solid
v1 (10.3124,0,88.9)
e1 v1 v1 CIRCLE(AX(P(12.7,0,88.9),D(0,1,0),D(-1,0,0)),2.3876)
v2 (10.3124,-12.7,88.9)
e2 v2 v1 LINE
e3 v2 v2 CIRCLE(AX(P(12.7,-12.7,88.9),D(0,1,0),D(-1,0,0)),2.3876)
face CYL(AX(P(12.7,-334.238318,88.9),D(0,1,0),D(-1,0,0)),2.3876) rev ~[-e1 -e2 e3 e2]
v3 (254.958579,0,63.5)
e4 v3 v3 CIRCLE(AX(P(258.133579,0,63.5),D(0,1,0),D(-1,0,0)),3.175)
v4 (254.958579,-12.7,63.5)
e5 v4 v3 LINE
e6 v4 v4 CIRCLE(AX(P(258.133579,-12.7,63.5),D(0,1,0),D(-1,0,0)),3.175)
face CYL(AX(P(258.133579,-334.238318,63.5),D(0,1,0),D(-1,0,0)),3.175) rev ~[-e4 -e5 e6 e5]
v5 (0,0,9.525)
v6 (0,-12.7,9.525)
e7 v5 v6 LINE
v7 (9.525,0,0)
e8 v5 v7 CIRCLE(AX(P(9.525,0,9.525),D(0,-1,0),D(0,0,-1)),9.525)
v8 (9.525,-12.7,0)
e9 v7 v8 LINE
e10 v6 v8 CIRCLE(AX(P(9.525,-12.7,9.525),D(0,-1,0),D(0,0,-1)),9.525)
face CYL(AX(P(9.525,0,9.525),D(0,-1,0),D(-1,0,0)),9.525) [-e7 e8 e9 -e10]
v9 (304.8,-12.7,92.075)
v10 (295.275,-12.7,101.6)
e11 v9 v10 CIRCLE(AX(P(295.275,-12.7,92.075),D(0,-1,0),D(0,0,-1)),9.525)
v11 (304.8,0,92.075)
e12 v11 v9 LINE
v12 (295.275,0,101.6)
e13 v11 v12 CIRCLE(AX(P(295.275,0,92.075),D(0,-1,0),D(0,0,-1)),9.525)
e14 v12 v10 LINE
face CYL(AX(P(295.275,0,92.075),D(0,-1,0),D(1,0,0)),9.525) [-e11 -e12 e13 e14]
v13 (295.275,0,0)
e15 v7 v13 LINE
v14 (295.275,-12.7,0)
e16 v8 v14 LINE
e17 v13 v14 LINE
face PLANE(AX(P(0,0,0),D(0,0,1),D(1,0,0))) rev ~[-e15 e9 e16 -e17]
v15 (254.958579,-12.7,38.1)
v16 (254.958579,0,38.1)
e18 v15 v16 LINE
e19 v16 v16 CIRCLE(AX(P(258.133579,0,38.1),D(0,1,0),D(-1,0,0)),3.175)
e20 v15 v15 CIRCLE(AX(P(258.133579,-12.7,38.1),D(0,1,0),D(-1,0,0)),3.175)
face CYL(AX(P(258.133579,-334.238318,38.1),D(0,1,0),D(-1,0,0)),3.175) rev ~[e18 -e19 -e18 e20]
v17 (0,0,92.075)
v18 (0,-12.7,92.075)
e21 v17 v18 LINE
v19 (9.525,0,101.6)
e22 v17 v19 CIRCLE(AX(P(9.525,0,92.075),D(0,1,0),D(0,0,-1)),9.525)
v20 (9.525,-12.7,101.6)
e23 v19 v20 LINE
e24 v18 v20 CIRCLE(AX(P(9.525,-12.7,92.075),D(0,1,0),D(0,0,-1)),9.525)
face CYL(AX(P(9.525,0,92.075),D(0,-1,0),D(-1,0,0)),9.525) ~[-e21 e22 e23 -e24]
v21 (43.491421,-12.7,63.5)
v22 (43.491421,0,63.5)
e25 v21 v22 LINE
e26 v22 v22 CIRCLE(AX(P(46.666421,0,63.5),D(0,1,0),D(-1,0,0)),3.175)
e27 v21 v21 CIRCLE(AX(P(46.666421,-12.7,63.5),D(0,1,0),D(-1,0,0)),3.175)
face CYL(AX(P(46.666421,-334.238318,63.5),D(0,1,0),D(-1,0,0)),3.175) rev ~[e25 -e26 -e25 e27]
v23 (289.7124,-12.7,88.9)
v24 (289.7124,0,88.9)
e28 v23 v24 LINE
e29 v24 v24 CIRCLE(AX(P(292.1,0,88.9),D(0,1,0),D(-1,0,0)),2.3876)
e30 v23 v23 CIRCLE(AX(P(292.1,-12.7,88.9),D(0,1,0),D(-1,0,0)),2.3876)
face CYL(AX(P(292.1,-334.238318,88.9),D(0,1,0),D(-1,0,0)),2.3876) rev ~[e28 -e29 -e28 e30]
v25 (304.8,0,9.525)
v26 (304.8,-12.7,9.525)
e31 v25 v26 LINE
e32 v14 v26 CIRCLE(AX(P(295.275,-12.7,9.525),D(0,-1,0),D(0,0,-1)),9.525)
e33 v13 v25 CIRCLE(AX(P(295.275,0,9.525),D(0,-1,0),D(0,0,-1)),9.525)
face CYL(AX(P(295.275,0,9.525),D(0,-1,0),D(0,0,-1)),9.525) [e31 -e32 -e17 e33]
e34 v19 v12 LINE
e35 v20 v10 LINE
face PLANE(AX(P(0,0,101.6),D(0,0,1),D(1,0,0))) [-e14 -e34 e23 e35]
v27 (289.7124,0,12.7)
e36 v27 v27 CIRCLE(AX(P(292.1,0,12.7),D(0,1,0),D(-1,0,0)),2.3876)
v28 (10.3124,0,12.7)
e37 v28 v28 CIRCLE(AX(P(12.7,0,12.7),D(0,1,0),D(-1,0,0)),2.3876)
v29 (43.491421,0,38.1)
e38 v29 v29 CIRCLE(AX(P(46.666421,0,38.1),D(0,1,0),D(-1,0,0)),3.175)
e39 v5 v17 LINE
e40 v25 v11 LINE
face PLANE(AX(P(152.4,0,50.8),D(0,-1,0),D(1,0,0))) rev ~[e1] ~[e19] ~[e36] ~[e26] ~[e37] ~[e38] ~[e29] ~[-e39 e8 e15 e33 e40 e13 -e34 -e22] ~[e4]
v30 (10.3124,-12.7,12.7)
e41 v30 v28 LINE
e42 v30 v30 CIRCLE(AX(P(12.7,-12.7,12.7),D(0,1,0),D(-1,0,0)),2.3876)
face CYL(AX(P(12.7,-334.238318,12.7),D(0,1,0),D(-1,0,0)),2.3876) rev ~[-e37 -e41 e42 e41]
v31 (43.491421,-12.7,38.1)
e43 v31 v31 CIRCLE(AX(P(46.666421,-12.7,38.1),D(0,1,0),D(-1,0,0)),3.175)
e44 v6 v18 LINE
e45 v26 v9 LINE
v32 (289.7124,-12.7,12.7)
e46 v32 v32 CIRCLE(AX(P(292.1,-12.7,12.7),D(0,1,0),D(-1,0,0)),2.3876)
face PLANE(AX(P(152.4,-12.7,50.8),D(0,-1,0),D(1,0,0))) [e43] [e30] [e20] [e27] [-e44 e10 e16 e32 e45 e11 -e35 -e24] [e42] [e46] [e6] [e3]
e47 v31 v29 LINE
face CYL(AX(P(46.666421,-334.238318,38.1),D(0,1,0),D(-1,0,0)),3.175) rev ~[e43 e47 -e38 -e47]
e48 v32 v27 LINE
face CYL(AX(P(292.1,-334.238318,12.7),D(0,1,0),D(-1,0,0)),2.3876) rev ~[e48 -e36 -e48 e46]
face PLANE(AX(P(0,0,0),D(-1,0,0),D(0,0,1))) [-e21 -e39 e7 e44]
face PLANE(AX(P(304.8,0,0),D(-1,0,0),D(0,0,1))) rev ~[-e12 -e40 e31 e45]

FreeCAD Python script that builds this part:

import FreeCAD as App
import Part
import Sketcher
from FreeCAD import Vector
Q = App.Units.Quantity


def edges_at(feature, points):
    """Names of the edges that pass closest to the given points."""
    edges = feature.Shape.Edges
    near = lambda p: min(range(len(edges)), key=lambda i: edges[i].distToShape(Part.Vertex(*p))[0])
    return sorted({f"Edge{near(p) + 1}" for p in points})


def add_polygon(sketch, points):
    """Adds a closed chain of lines whose ends are joined by coincident constraints."""
    first, n = sketch.GeometryCount, len(points)
    for a, b in zip(points, points[1:] + points[:1]):
        sketch.addGeometry(Part.LineSegment(App.Vector(*a, 0), App.Vector(*b, 0)), False)
    for i in range(n):
        sketch.addConstraint(Sketcher.Constraint("Coincident", first + i, 2, first + (i + 1) % n, 1))

doc = App.newDocument("Part")
body = doc.addObject("PartDesign::Body", "Body")

# Sketch on XZ plane
sketch1 = body.newObject("Sketcher::SketchObject", "Sketch")
sketch1.AttachmentSupport = (doc.getObject("XZ_Plane"), [""])
sketch1.MapMode = "FlatFace"
add_polygon(sketch1, [(0, 102), (0, 0), (305, 0), (305, 102)])  # lines 0-3
sketch1.addConstraint([
    Sketcher.Constraint("Vertical", 0),
    Sketcher.Constraint("Horizontal", 1),
    Sketcher.Constraint("Vertical", 2),
    Sketcher.Constraint("Horizontal", 3),
    Sketcher.Constraint("Coincident", 0, 2, -1, 1),
    Sketcher.Constraint("DistanceX", 1, 1, 1, 2, Q("12 in")),
    Sketcher.Constraint("DistanceY", 0, 2, 0, 1, Q("4 in")),
])
pad1 = body.newObject("PartDesign::Pad", "Pad")
pad1.Profile = sketch1
pad1.Length = Q("0.5 in")
doc.recompute()

fillet = body.newObject("PartDesign::Fillet", "Fillet")
fillet.Base = (pad1, edges_at(pad1, [
    (0, -6.35, 101.6),
    (304.8, -6.35, 101.6),
    (304.8, -6.35, 0),
    (0, -6.35, 0),
]))
fillet.Radius = Q("0.375 in")

# Sketch on XZ plane
sketch2 = body.newObject("Sketcher::SketchObject", "Sketch001")
sketch2.AttachmentSupport = (doc.getObject("XZ_Plane"), [""])
sketch2.MapMode = "FlatFace"
sketch2.AttachmentOffset = App.Placement(Vector(0, 0, 0.5 * 25.4), App.Rotation())
sketch2.addGeometry([
    Part.Circle(Vector(12.7, 88.9, 0), Vector(0, 0, 1), 2.4),
    Part.Circle(Vector(12.7, 12.7, 0), Vector(0, 0, 1), 2.4),
    Part.Circle(Vector(292.1, 12.7, 0), Vector(0, 0, 1), 2.4),
    Part.Circle(Vector(292.1, 88.9, 0), Vector(0, 0, 1), 2.4),
], False)
sketch2.addConstraint([
    Sketcher.Constraint("Equal", 0, 1),
    Sketcher.Constraint("Equal", 1, 2),
    Sketcher.Constraint("Equal", 2, 3),
    Sketcher.Constraint("Horizontal", 1, 3, 2, 3),
    Sketcher.Constraint("Horizontal", 0, 3, 3, 3),
    Sketcher.Constraint("Vertical", 0, 3, 1, 3),
    Sketcher.Constraint("Vertical", 2, 3, 3, 3),
    Sketcher.Constraint("Diameter", 0, Q("0.188 in")),
    Sketcher.Constraint("DistanceY", 1, 3, 0, 3, Q("3 in")),
    Sketcher.Constraint("DistanceX", 1, 3, 2, 3, Q("11 in")),
    Sketcher.Constraint("DistanceX", -1, 1, 0, 3, Q("0.5 in")),
    Sketcher.Constraint("DistanceY", -1, 1, 0, 3, Q("3.5 in")),
])
doc.recompute()
hole = body.newObject("PartDesign::Hole", "Hole")
hole.Profile = sketch2
hole.ThreadType = "None"
hole.Diameter = Q("0.188 in")
hole.DepthType = "ThroughAll"

# Sketch on XZ plane
sketch3 = body.newObject("Sketcher::SketchObject", "Sketch002")
sketch3.AttachmentSupport = (doc.getObject("XZ_Plane"), [""])
sketch3.MapMode = "FlatFace"
sketch3.AttachmentOffset = App.Placement(Vector(0, 0, 0.5 * 25.4), App.Rotation())
sketch3.addGeometry([
    Part.Circle(Vector(46.7, 63.5, 0), Vector(0, 0, 1), 3.2),
    Part.Circle(Vector(46.7, 38.1, 0), Vector(0, 0, 1), 3.2),
    Part.Circle(Vector(258.1, 63.5, 0), Vector(0, 0, 1), 3.2),
    Part.Circle(Vector(258.1, 38.1, 0), Vector(0, 0, 1), 3.2),
], False)
sketch3.addConstraint([
    Sketcher.Constraint("Equal", 0, 1),
    Sketcher.Constraint("Equal", 1, 2),
    Sketcher.Constraint("Equal", 2, 3),
    Sketcher.Constraint("Horizontal", 0, 3, 2, 3),
    Sketcher.Constraint("Horizontal", 1, 3, 3, 3),
    Sketcher.Constraint("Vertical", 0, 3, 1, 3),
    Sketcher.Constraint("Vertical", 2, 3, 3, 3),
    Sketcher.Constraint("Diameter", 0, Q("0.25 in")),
    Sketcher.Constraint("DistanceY", 1, 3, 0, 3, Q("1 in")),
    Sketcher.Constraint("DistanceY", -1, 1, 0, 3, Q("2.5 in")),
    Sketcher.Constraint("DistanceX", -1, 1, 0, 3, Q("46.666421 mm")),
    Sketcher.Constraint("DistanceX", -1, 1, 2, 3, Q("258.133579 mm")),
])
doc.recompute()
hole2 = body.newObject("PartDesign::Hole", "Hole001")
hole2.Profile = sketch3
hole2.ThreadType = "None"
hole2.Diameter = Q("0.25 in")
hole2.DepthType = "ThroughAll"

doc.recompute()
